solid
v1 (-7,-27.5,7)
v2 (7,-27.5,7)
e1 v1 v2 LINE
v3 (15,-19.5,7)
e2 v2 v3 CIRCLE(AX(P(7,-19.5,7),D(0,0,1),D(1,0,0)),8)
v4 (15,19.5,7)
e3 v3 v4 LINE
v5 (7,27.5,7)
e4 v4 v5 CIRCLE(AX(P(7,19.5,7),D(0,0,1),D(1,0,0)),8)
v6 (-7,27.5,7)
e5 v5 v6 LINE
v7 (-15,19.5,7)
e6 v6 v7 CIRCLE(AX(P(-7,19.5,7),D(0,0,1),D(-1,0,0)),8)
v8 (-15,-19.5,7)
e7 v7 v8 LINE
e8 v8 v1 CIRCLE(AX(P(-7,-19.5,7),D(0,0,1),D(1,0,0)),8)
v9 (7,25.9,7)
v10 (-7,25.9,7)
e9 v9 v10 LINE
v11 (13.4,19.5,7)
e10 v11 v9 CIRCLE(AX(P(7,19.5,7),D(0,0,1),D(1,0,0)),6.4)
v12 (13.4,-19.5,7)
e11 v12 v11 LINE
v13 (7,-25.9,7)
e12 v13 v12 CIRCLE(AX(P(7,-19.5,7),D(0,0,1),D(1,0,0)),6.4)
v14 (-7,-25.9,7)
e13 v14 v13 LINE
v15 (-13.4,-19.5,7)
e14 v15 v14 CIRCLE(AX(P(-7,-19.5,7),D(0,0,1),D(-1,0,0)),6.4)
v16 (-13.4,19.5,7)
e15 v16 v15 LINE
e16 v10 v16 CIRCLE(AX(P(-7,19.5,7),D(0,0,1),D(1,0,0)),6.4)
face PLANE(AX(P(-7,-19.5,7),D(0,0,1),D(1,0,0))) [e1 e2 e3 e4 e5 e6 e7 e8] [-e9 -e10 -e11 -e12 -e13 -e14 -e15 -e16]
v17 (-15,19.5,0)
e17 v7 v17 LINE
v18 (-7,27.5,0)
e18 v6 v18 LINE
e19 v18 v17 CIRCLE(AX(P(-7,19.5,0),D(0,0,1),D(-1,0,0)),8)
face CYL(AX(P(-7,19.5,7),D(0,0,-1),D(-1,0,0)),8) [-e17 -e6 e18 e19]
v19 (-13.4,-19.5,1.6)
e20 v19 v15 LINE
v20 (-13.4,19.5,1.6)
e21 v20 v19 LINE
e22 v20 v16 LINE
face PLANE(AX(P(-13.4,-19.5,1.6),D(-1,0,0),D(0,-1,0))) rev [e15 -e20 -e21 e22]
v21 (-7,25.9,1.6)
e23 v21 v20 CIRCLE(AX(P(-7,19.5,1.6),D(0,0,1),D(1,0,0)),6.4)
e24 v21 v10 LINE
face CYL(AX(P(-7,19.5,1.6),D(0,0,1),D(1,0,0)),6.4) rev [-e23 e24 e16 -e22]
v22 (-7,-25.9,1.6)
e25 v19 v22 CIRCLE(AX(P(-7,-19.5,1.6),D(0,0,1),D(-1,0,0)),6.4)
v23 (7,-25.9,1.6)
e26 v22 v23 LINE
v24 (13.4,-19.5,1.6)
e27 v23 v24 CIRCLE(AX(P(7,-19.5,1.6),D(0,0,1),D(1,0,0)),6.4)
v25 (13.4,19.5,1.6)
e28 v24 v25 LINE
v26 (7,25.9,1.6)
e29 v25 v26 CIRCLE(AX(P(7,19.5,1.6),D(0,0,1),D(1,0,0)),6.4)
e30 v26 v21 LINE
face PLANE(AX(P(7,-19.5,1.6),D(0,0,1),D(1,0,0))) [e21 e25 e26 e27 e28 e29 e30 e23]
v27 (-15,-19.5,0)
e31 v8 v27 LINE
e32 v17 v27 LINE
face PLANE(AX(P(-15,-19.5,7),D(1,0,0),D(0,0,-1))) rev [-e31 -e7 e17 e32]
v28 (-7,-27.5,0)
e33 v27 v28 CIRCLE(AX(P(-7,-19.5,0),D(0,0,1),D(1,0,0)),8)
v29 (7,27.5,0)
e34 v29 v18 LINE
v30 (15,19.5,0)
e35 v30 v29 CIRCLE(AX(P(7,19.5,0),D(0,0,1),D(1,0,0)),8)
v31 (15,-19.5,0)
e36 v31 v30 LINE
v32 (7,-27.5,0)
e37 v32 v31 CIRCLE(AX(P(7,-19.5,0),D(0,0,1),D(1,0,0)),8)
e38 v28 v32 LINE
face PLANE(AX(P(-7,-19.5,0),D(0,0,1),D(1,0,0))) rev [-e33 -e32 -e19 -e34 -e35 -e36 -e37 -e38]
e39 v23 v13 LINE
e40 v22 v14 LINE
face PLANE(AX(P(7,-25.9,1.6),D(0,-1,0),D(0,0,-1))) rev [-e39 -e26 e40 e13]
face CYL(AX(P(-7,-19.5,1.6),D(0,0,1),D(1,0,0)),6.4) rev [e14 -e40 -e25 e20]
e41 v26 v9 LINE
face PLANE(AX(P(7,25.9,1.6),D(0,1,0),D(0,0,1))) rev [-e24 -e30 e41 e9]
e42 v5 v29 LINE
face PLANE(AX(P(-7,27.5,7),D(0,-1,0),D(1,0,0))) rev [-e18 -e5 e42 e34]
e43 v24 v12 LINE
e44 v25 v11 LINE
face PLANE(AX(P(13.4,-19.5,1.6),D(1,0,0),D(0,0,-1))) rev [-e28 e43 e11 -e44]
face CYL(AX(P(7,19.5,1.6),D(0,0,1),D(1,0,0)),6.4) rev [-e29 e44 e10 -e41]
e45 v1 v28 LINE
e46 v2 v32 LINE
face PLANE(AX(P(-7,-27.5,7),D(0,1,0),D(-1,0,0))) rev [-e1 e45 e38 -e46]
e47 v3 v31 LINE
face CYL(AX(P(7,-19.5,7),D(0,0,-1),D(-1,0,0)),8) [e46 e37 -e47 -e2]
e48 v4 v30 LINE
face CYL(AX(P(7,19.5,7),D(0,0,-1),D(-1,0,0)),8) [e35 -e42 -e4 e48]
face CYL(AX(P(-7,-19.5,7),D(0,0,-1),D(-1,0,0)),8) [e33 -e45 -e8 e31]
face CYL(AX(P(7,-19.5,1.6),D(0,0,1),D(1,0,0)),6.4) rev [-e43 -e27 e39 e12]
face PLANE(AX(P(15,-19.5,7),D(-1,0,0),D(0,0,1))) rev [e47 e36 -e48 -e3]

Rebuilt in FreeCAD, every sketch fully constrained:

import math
import FreeCAD as App
import Part
import Sketcher

V = App.Vector

doc = App.newDocument("Part")
body = doc.addObject("PartDesign::Body", "Body")

# Sketch on XY plane
sketch1 = body.newObject("Sketcher::SketchObject", "Sketch")
sketch1.AttachmentSupport = (doc.getObject("XY_Plane"), [""])
sketch1.MapMode = "FlatFace"
sketch1.addGeometry([
    Part.LineSegment(V(-15, 20, 0), V(-15, -20, 0)),  # 0
    Part.ArcOfCircle(Part.Circle(V(-7, -19, 0), V(0, 0, 1), 8), math.radians(-180), math.radians(-90)),  # 1
    Part.LineSegment(V(-7, -28, 0), V(7, -28, 0)),  # 2
    Part.ArcOfCircle(Part.Circle(V(7, -19, 0), V(0, 0, 1), 8), math.radians(-90), math.radians(0)),  # 3
    Part.LineSegment(V(15, -20, 0), V(15, 20, 0)),  # 4
    Part.ArcOfCircle(Part.Circle(V(7, 19, 0), V(0, 0, 1), 8), math.radians(0), math.radians(90)),  # 5
    Part.LineSegment(V(7, 28, 0), V(-7, 28, 0)),  # 6
    Part.ArcOfCircle(Part.Circle(V(-7, 19, 0), V(0, 0, 1), 8), math.radians(90), math.radians(180)),  # 7
], False)
sketch1.addConstraint([
    Sketcher.Constraint("Tangent", 0, 2, 1, 1),
    Sketcher.Constraint("Tangent", 1, 2, 2, 1),
    Sketcher.Constraint("Tangent", 2, 2, 3, 1),
    Sketcher.Constraint("Tangent", 3, 2, 4, 1),
    Sketcher.Constraint("Tangent", 4, 2, 5, 1),
    Sketcher.Constraint("Tangent", 5, 2, 6, 1),
    Sketcher.Constraint("Tangent", 6, 2, 7, 1),
    Sketcher.Constraint("Tangent", 7, 2, 0, 1),
    Sketcher.Constraint("Vertical", 0),
    Sketcher.Constraint("Horizontal", 2),
    Sketcher.Constraint("Vertical", 4),
    Sketcher.Constraint("Horizontal", 6),
    Sketcher.Constraint("Equal", 1, 3),
    Sketcher.Constraint("Equal", 3, 5),
    Sketcher.Constraint("Equal", 5, 7),
    Sketcher.Constraint("Symmetric", 1, 3, 5, 3, -1, 1),
    Sketcher.Constraint("Radius", 1, 8.0),
    Sketcher.Constraint("DistanceX", 2, 1, 2, 2, 14.0),
    Sketcher.Constraint("DistanceY", 0, 2, 0, 1, 39.0),
])
pad1 = body.newObject("PartDesign::Pad", "Pad")
pad1.Profile = sketch1
pad1.Length = 7

# Sketch on XY plane
sketch2 = body.newObject("Sketcher::SketchObject", "Sketch001")
sketch2.AttachmentSupport = (doc.getObject("XY_Plane"), [""])
sketch2.MapMode = "FlatFace"
sketch2.AttachmentOffset = App.Placement(V(0, 0, 7), App.Rotation())
sketch2.addGeometry([
    Part.LineSegment(V(-7, -26, 0), V(7, -26, 0)),  # 0
    Part.ArcOfCircle(Part.Circle(V(7, -20, 0), V(0, 0, 1), 6), math.radians(-90), math.radians(0)),  # 1
    Part.LineSegment(V(13, -20, 0), V(13, 20, 0)),  # 2
    Part.ArcOfCircle(Part.Circle(V(7, 20, 0), V(0, 0, 1), 6), math.radians(0), math.radians(90)),  # 3
    Part.LineSegment(V(7, 26, 0), V(-7, 26, 0)),  # 4
    Part.ArcOfCircle(Part.Circle(V(-7, 20, 0), V(0, 0, 1), 6), math.radians(90), math.radians(180)),  # 5
    Part.LineSegment(V(-13, 20, 0), V(-13, -20, 0)),  # 6
    Part.ArcOfCircle(Part.Circle(V(-7, -20, 0), V(0, 0, 1), 6), math.radians(180), math.radians(270)),  # 7
], False)
sketch2.addConstraint([
    Sketcher.Constraint("Tangent", 0, 2, 1, 1),
    Sketcher.Constraint("Tangent", 1, 2, 2, 1),
    Sketcher.Constraint("Tangent", 2, 2, 3, 1),
    Sketcher.Constraint("Tangent", 3, 2, 4, 1),
    Sketcher.Constraint("Tangent", 4, 2, 5, 1),
    Sketcher.Constraint("Tangent", 5, 2, 6, 1),
    Sketcher.Constraint("Tangent", 6, 2, 7, 1),
    Sketcher.Constraint("Tangent", 7, 2, 0, 1),
    Sketcher.Constraint("Horizontal", 0),
    Sketcher.Constraint("Vertical", 2),
    Sketcher.Constraint("Horizontal", 4),
    Sketcher.Constraint("Vertical", 6),
    Sketcher.Constraint("Equal", 1, 3),
    Sketcher.Constraint("Equal", 3, 5),
    Sketcher.Constraint("Equal", 5, 7),
    Sketcher.Constraint("Symmetric", 1, 3, 5, 3, -1, 1),
    Sketcher.Constraint("Radius", 1, 6.4),
    Sketcher.Constraint("DistanceX", 0, 1, 0, 2, 14.0),
    Sketcher.Constraint("DistanceY", 2, 1, 2, 2, 39.0),
])
pocket1 = body.newObject("PartDesign::Pocket", "Pocket")
pocket1.Profile = sketch2
pocket1.Length = 5.4

doc.recompute()
